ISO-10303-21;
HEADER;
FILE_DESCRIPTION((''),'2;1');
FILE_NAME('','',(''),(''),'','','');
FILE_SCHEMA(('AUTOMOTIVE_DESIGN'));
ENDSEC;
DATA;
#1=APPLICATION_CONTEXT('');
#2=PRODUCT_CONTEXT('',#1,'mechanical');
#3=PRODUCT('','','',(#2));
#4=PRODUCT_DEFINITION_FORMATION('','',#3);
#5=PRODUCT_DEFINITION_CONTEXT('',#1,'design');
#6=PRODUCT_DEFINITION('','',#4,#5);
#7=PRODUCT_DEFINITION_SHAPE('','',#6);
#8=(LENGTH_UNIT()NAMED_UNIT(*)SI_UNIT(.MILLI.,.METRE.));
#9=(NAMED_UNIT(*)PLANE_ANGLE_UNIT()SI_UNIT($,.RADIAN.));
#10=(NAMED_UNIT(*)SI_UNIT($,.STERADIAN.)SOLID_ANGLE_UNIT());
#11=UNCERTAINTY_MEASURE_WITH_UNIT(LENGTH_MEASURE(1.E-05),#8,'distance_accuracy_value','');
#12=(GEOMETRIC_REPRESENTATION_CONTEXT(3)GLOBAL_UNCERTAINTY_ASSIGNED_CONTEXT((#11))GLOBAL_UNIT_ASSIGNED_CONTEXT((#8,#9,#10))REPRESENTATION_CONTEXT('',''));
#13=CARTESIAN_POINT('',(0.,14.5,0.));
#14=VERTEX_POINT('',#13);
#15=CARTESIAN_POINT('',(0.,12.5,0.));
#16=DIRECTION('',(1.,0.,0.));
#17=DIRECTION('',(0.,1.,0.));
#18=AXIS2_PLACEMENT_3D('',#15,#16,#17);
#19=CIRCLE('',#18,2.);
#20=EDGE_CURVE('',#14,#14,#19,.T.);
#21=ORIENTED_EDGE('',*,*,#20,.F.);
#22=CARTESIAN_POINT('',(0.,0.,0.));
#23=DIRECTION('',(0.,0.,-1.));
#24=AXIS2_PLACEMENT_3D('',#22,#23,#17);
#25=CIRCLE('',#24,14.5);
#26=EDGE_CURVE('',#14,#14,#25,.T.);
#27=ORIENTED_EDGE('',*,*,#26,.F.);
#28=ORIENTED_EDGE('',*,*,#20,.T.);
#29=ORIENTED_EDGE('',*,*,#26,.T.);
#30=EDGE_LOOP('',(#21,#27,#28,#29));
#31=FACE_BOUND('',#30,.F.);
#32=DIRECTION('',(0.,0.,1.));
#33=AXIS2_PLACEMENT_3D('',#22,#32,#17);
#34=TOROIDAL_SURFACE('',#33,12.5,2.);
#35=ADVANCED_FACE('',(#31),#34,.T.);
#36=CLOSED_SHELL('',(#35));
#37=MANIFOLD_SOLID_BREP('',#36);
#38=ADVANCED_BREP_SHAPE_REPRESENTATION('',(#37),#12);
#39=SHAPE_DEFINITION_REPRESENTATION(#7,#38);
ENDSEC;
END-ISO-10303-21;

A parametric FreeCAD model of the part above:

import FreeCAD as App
import Part
import Sketcher

doc = App.newDocument("Part")
body = doc.addObject("PartDesign::Body", "Body")

# Sketch on YZ plane
sketch1 = body.newObject("Sketcher::SketchObject", "Sketch")
sketch1.AttachmentSupport = (doc.getObject("YZ_Plane"), [""])
sketch1.MapMode = "FlatFace"
sketch1.addGeometry(Part.Circle(App.Vector(12.5, 0, 0), App.Vector(0, 0, 1), 2), False)
sketch1.addConstraint([
    Sketcher.Constraint("PointOnObject", 0, 3, -1),
    Sketcher.Constraint("Diameter", 0, 4.0),
    Sketcher.Constraint("DistanceX", -1, 1, 0, 3, 12.5),
])
revolution = body.newObject("PartDesign::Revolution", "Revolution")
revolution.Profile = sketch1
revolution.ReferenceAxis = (sketch1, ["V_Axis"])
revolution.Angle = 360

doc.recompute()
